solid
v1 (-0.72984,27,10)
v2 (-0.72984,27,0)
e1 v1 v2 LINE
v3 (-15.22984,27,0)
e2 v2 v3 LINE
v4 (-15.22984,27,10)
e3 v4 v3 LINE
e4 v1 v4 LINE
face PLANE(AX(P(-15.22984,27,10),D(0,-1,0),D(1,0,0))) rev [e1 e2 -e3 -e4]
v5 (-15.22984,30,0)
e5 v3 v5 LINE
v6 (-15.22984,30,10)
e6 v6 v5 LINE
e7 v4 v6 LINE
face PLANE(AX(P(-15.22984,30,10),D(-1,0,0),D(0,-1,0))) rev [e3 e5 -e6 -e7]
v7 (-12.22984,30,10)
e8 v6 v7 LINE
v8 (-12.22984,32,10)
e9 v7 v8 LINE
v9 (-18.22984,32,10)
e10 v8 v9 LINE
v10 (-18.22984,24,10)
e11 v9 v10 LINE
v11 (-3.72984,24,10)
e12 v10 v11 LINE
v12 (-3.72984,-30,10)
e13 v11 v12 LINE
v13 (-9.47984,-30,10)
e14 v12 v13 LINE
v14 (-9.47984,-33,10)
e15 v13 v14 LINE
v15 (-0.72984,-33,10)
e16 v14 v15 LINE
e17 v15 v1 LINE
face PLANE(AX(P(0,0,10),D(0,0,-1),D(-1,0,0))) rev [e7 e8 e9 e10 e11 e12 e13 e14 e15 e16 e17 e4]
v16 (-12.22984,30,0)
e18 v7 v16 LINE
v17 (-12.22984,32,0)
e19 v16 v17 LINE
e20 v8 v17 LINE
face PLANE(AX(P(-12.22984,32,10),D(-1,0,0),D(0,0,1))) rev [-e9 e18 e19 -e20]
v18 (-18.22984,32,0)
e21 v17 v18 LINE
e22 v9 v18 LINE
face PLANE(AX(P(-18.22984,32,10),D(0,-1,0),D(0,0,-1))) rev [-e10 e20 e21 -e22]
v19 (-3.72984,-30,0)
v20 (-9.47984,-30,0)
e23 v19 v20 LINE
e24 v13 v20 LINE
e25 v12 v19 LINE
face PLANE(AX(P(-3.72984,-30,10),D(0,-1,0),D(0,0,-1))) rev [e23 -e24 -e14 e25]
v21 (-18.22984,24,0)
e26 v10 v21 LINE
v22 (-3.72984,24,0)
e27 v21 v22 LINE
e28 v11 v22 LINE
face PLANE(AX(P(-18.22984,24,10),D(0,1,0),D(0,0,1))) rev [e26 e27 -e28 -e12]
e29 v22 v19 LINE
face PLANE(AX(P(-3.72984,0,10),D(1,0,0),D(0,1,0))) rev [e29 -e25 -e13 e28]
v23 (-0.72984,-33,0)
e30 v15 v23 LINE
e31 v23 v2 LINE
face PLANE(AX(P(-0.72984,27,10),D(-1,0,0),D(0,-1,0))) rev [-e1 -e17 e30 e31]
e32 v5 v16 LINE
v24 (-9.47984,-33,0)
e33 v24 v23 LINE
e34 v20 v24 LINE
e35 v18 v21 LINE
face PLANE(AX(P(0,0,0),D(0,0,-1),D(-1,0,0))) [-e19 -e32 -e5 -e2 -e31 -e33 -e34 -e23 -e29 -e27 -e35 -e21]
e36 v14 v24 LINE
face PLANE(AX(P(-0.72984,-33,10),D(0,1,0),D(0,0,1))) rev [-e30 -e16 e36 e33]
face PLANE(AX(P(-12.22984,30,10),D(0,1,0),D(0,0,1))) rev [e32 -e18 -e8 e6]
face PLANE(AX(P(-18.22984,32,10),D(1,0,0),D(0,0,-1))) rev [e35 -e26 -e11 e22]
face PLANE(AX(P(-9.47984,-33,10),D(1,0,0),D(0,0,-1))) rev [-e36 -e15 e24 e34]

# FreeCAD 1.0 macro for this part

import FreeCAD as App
import Part
import Sketcher
from FreeCAD import Vector


def add_polygon(sketch, points):
    """Adds a closed chain of lines whose ends are joined by coincident constraints."""
    first, n = sketch.GeometryCount, len(points)
    for a, b in zip(points, points[1:] + points[:1]):
        sketch.addGeometry(Part.LineSegment(App.Vector(*a, 0), App.Vector(*b, 0)), False)
    for i in range(n):
        sketch.addConstraint(Sketcher.Constraint("Coincident", first + i, 2, first + (i + 1) % n, 1))

doc = App.newDocument("Part")
body = doc.addObject("PartDesign::Body", "Body")

sketch1 = doc.addObject("Sketcher::SketchObject", "Sketch")
body.addObject(sketch1)
sketch1.AttachmentSupport = (doc.XY_Plane, [""])
sketch1.MapMode = "FlatFace"
add_polygon(sketch1, [(-18.22984, 32), (-18.22984, 24), (-3.72984, 24), (-3.72984, -30), (-9.47984, -30), (-9.47984, -33), (-0.72984, -33), (-0.72984, 27), (-15.22984, 27), (-15.22984, 30), (-12.22984, 30), (-12.22984, 32)])
sketch1.addConstraint(Sketcher.Constraint("Vertical", 0))
sketch1.addConstraint(Sketcher.Constraint("Horizontal", 1))
sketch1.addConstraint(Sketcher.Constraint("Vertical", 2))
sketch1.addConstraint(Sketcher.Constraint("Horizontal", 3))
sketch1.addConstraint(Sketcher.Constraint("Vertical", 4))
sketch1.addConstraint(Sketcher.Constraint("Horizontal", 5))
sketch1.addConstraint(Sketcher.Constraint("Vertical", 6))
sketch1.addConstraint(Sketcher.Constraint("Horizontal", 7))
sketch1.addConstraint(Sketcher.Constraint("Vertical", 8))
sketch1.addConstraint(Sketcher.Constraint("Horizontal", 9))
sketch1.addConstraint(Sketcher.Constraint("Vertical", 10))
sketch1.addConstraint(Sketcher.Constraint("Horizontal", 11))
sketch1.addConstraint(Sketcher.Constraint("Equal", 1, 7))
sketch1.addConstraint(Sketcher.Constraint("Equal", 9, 4))
sketch1.addConstraint(Sketcher.Constraint("Equal", 4, 8))
sketch1.addConstraint(Sketcher.Constraint("DistanceX", 9, 1, 9, 2, 3.0))
sketch1.addConstraint(Sketcher.Constraint("DistanceX", 11, 2, 11, 1, 6.0))
sketch1.addConstraint(Sketcher.Constraint("DistanceY", 0, 2, 0, 1, 8.0))
sketch1.addConstraint(Sketcher.Constraint("DistanceY", 2, 2, 2, 1, 54.0))
sketch1.addConstraint(Sketcher.Constraint("DistanceY", 6, 1, 6, 2, 60.0))
sketch1.addConstraint(Sketcher.Constraint("DistanceX", 1, 1, 1, 2, 14.5))
sketch1.addConstraint(Sketcher.Constraint("DistanceY", -1, 1, 0, 2, 24.0))
sketch1.addConstraint(Sketcher.Constraint("DistanceX", 3, 2, 3, 1, 5.75))
sketch1.addConstraint(Sketcher.Constraint("DistanceX", 0, 2, -1, 1, 18.22984))
pad1 = doc.addObject("PartDesign::Pad", "Pad")
body.addObject(pad1)
pad1.Profile = sketch1
pad1.Length = 10

doc.recompute()
